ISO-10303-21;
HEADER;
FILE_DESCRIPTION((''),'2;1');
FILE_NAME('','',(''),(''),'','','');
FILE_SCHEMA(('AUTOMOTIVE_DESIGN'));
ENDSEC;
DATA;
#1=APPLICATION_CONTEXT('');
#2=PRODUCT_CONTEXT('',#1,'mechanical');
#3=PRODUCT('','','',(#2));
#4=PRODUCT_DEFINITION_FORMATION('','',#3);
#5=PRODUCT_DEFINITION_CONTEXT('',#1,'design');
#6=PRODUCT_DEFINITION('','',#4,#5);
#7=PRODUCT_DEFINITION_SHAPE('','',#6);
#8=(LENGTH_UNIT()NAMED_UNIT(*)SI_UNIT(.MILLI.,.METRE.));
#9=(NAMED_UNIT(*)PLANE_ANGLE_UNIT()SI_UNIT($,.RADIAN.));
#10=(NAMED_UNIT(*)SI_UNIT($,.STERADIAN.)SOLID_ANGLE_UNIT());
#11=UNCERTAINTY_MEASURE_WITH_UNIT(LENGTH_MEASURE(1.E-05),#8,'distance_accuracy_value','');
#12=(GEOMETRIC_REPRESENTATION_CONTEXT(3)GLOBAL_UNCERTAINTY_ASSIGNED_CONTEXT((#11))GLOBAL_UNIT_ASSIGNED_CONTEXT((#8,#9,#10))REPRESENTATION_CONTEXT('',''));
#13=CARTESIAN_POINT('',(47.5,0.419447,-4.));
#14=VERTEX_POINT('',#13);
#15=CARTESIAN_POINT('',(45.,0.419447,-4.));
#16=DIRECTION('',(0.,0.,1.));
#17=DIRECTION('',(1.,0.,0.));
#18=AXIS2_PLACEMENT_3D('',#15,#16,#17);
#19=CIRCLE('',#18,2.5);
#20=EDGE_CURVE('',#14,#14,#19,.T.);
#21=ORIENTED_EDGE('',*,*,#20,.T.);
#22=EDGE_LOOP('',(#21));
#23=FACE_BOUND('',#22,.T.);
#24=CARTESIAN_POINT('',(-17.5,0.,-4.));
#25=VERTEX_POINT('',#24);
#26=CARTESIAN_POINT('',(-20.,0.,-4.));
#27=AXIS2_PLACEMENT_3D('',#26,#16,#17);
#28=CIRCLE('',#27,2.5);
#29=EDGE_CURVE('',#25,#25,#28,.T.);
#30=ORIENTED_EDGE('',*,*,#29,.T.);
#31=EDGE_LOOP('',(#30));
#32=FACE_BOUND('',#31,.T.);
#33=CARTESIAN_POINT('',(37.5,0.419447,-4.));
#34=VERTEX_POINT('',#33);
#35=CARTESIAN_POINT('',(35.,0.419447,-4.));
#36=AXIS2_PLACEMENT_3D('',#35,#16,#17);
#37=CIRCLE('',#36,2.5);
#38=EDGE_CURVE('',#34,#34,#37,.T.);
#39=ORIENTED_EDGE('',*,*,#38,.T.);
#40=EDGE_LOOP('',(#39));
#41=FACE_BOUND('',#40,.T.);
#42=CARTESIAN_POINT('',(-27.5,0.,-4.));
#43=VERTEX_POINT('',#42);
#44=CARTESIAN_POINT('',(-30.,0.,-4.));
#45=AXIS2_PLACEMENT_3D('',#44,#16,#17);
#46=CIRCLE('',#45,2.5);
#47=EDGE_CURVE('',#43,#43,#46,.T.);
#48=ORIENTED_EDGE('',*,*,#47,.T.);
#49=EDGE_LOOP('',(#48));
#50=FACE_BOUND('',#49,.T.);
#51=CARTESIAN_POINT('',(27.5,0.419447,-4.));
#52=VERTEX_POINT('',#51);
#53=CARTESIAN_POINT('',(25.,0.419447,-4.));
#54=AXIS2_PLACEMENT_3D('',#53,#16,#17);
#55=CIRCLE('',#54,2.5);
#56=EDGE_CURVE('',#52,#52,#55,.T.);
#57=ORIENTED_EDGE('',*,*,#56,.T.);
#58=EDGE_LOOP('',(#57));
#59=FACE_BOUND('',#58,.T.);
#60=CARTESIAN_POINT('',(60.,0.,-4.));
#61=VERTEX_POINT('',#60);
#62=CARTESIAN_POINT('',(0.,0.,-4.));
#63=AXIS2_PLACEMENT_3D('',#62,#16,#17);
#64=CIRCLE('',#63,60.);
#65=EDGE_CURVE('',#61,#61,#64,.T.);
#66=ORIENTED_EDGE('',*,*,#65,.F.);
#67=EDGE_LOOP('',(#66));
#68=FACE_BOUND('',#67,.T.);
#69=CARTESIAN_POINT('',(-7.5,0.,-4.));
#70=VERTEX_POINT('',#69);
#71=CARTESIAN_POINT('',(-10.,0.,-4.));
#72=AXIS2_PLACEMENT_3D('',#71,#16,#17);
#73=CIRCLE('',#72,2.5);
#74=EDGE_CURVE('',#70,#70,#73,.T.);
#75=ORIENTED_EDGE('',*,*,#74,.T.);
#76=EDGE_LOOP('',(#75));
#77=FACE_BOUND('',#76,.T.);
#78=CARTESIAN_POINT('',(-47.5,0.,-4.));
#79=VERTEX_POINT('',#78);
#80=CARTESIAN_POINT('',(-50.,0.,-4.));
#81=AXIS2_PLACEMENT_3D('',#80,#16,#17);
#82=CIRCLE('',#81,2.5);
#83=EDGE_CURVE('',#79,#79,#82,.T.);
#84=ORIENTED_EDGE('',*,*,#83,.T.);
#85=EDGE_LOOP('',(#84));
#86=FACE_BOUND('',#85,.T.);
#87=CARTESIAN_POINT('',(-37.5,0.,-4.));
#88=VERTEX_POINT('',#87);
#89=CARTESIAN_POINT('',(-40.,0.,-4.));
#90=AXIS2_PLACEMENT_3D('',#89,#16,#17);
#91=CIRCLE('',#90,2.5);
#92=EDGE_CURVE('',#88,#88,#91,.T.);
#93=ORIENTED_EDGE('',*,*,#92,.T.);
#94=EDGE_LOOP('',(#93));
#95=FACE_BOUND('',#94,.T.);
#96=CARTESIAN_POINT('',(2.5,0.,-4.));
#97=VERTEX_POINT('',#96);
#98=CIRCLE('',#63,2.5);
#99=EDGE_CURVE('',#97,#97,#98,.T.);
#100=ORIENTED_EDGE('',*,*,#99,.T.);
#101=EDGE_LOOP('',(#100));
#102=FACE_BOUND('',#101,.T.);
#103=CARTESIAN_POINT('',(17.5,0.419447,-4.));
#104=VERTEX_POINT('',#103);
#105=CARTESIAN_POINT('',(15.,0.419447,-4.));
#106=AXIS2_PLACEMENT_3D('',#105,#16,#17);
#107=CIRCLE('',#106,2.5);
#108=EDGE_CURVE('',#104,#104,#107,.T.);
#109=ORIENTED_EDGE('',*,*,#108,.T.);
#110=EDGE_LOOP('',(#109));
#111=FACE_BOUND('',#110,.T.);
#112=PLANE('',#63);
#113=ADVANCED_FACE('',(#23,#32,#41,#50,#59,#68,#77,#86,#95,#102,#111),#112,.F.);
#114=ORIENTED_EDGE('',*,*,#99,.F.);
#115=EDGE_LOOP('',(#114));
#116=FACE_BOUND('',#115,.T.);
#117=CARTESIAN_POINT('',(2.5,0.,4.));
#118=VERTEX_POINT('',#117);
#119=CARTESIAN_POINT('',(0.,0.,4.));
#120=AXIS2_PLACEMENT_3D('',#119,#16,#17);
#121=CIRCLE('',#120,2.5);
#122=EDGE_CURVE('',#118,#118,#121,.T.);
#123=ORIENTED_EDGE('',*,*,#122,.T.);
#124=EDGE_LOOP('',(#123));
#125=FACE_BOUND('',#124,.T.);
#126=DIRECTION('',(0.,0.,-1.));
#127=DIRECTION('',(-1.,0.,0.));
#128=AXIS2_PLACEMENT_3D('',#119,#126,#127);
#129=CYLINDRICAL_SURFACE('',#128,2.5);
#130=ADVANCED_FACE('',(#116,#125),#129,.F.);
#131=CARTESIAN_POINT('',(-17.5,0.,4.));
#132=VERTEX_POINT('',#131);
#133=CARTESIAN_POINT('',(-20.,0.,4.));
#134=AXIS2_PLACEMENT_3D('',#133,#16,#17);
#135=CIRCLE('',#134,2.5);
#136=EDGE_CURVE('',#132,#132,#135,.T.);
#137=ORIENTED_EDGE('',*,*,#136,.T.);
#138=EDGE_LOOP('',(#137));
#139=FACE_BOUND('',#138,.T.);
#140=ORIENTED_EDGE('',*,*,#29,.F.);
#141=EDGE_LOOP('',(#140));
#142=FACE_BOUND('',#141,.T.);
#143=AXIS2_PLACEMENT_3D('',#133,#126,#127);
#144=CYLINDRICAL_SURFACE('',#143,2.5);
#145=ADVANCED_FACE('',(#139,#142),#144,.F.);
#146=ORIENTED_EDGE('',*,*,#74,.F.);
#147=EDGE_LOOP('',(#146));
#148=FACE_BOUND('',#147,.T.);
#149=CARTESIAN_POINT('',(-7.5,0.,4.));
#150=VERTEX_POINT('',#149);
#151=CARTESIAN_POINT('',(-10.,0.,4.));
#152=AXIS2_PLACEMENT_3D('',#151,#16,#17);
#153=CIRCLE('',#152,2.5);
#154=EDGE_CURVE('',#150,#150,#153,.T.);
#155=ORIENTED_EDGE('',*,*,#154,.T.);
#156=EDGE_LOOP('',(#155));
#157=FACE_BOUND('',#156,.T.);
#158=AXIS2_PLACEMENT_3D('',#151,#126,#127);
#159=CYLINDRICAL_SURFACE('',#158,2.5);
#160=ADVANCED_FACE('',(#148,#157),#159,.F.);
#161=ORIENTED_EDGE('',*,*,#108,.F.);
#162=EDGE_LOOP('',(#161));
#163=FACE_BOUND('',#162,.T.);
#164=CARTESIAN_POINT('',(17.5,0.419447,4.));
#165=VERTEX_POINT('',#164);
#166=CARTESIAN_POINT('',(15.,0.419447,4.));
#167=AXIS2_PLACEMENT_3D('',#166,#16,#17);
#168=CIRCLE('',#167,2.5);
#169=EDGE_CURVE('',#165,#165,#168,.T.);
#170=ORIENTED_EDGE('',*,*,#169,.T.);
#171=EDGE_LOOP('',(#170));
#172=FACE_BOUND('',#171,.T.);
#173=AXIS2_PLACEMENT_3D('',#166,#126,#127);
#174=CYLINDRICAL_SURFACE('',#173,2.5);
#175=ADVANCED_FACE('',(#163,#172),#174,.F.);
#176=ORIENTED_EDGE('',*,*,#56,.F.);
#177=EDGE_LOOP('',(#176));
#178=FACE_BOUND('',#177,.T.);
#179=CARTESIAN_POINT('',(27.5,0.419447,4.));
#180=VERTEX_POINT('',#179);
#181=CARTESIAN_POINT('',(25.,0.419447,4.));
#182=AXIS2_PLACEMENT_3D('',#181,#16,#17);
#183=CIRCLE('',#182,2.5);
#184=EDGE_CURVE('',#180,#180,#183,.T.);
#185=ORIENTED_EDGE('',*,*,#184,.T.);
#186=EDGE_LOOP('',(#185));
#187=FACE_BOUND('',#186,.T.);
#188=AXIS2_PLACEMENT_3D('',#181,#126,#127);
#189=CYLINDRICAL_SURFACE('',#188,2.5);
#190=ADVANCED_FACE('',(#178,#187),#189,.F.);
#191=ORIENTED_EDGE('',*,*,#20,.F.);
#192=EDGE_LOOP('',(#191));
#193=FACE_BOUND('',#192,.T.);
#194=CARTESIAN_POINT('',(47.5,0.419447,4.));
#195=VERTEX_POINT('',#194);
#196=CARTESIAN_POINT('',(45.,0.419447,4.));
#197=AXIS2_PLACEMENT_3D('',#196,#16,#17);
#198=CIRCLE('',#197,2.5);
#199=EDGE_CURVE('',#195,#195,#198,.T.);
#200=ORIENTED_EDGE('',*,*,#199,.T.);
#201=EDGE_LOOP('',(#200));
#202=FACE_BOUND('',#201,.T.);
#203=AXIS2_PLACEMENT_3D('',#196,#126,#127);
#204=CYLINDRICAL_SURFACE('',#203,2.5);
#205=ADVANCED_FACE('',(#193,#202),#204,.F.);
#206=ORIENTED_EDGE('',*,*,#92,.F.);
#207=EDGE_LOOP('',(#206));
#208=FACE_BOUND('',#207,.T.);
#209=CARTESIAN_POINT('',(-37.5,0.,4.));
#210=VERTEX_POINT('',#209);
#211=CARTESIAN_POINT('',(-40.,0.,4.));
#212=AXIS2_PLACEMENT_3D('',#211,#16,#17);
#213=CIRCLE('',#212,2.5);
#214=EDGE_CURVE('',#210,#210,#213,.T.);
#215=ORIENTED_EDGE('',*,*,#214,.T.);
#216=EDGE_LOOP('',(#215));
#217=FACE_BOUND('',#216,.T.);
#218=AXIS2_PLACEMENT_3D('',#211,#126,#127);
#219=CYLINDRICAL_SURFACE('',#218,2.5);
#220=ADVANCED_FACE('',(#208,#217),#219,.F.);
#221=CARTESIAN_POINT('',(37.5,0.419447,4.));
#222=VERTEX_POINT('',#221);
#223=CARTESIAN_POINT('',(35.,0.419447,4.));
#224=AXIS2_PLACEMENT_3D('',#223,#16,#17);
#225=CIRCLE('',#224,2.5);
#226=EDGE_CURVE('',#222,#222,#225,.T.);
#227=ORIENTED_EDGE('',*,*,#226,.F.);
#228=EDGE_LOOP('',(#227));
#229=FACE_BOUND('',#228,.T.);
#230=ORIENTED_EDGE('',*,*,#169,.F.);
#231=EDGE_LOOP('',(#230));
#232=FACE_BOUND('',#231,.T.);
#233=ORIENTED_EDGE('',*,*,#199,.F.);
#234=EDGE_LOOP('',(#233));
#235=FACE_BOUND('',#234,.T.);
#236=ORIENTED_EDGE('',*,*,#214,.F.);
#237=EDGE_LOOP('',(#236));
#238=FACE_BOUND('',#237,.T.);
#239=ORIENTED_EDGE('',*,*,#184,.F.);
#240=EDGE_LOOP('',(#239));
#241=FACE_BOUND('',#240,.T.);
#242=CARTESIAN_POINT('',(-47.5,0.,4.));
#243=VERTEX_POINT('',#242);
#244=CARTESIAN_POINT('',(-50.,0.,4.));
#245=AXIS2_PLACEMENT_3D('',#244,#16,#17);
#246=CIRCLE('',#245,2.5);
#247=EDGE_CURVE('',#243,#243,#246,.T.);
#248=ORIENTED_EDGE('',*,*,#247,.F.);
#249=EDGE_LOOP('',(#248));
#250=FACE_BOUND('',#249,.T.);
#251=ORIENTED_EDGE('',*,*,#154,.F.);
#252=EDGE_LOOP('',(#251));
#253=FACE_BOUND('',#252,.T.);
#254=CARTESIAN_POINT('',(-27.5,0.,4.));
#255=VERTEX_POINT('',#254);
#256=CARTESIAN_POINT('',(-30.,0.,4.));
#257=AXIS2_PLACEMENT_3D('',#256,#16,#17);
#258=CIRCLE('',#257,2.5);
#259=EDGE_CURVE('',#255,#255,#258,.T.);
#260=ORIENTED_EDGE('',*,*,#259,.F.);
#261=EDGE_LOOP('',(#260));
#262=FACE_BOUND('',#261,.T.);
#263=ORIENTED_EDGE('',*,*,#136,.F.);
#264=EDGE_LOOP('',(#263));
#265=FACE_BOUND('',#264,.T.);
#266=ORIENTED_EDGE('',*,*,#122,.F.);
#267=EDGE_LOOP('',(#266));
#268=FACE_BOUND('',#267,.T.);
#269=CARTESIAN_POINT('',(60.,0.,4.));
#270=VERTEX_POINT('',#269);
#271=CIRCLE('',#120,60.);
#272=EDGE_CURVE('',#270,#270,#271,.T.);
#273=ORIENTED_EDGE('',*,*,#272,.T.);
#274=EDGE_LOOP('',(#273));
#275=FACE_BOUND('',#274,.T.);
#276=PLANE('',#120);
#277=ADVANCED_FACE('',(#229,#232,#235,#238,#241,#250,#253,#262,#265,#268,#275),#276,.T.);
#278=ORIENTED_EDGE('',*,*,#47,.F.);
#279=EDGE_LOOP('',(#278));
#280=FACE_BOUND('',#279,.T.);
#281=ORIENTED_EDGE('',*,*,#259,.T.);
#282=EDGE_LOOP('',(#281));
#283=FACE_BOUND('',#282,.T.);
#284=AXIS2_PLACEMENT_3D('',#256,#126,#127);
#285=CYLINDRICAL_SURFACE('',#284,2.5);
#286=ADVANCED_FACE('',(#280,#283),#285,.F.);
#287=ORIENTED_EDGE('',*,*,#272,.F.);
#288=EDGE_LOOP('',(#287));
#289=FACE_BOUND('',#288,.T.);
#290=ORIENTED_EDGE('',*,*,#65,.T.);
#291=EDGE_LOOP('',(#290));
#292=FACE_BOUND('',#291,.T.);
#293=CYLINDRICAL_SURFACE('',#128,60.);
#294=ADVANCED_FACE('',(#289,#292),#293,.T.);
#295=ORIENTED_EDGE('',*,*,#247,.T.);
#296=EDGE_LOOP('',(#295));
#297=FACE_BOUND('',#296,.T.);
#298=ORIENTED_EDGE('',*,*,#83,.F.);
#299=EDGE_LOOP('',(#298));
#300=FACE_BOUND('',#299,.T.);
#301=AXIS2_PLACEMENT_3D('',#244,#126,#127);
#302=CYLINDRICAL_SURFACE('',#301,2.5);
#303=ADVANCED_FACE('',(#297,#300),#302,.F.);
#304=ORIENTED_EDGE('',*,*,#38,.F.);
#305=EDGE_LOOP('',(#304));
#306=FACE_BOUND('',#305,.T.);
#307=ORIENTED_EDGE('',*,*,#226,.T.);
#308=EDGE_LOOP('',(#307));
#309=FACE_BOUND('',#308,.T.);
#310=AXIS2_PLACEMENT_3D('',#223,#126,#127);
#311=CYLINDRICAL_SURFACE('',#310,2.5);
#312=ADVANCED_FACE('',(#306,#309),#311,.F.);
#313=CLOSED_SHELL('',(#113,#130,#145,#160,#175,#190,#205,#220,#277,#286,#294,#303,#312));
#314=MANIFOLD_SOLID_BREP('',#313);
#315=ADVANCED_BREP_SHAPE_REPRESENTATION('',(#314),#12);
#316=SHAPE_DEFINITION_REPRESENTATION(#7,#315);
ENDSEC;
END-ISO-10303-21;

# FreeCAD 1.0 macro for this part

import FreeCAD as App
import Part
import Sketcher
from FreeCAD import Vector

doc = App.newDocument("Part")
body = doc.addObject("PartDesign::Body", "Body")

# Sketch on XY plane
sketch1 = doc.addObject("Sketcher::SketchObject", "Sketch")
body.addObject(sketch1)
sketch1.AttachmentSupport = (doc.XY_Plane, [""])
sketch1.MapMode = "FlatFace"
sketch1.addGeometry(Part.Circle(Vector(0, 0, 0), Vector(0, 0, 1), 60), False)
sketch1.addGeometry(Part.Circle(Vector(-50, 0, 0), Vector(0, 0, 1), 2.5), False)
sketch1.addGeometry(Part.Circle(Vector(-40, 0, 0), Vector(0, 0, 1), 2.5), False)
sketch1.addGeometry(Part.Circle(Vector(-30, 0, 0), Vector(0, 0, 1), 2.5), False)
sketch1.addGeometry(Part.Circle(Vector(-20, 0, 0), Vector(0, 0, 1), 2.5), False)
sketch1.addGeometry(Part.Circle(Vector(-10, 0, 0), Vector(0, 0, 1), 2.5), False)
sketch1.addGeometry(Part.Circle(Vector(0, 0, 0), Vector(0, 0, 1), 2.5), False)
sketch1.addGeometry(Part.Circle(Vector(15, 0.419447, 0), Vector(0, 0, 1), 2.5), False)
sketch1.addGeometry(Part.Circle(Vector(25, 0.419447, 0), Vector(0, 0, 1), 2.5), False)
sketch1.addGeometry(Part.Circle(Vector(35, 0.419447, 0), Vector(0, 0, 1), 2.5), False)
sketch1.addGeometry(Part.Circle(Vector(45, 0.419447, 0), Vector(0, 0, 1), 2.5), False)
sketch1.addConstraint(Sketcher.Constraint("Coincident", 0, 3, -1, 1))
sketch1.addConstraint(Sketcher.Constraint("Coincident", 6, 3, -1, 1))
sketch1.addConstraint(Sketcher.Constraint("Equal", 1, 2))
sketch1.addConstraint(Sketcher.Constraint("Equal", 2, 3))
sketch1.addConstraint(Sketcher.Constraint("Equal", 3, 4))
sketch1.addConstraint(Sketcher.Constraint("Equal", 4, 5))
sketch1.addConstraint(Sketcher.Constraint("Equal", 5, 6))
sketch1.addConstraint(Sketcher.Constraint("Equal", 6, 7))
sketch1.addConstraint(Sketcher.Constraint("Equal", 7, 8))
sketch1.addConstraint(Sketcher.Constraint("Equal", 8, 9))
sketch1.addConstraint(Sketcher.Constraint("Equal", 9, 10))
sketch1.addConstraint(Sketcher.Constraint("PointOnObject", 1, 3, -1))
sketch1.addConstraint(Sketcher.Constraint("PointOnObject", 2, 3, -1))
sketch1.addConstraint(Sketcher.Constraint("PointOnObject", 3, 3, -1))
sketch1.addConstraint(Sketcher.Constraint("PointOnObject", 4, 3, -1))
sketch1.addConstraint(Sketcher.Constraint("PointOnObject", 5, 3, -1))
sketch1.addConstraint(Sketcher.Constraint("Horizontal", 7, 3, 8, 3))
sketch1.addConstraint(Sketcher.Constraint("Horizontal", 8, 3, 9, 3))
sketch1.addConstraint(Sketcher.Constraint("Horizontal", 9, 3, 10, 3))
sketch1.addConstraint(Sketcher.Constraint("Diameter", 0, 120.0))
sketch1.addConstraint(Sketcher.Constraint("Diameter", 1, 5.0))
sketch1.addConstraint(Sketcher.Constraint("DistanceX", 1, 3, -1, 1, 50.0))
sketch1.addConstraint(Sketcher.Constraint("DistanceX", 2, 3, -1, 1, 40.0))
sketch1.addConstraint(Sketcher.Constraint("DistanceX", 3, 3, -1, 1, 30.0))
sketch1.addConstraint(Sketcher.Constraint("DistanceX", 4, 3, -1, 1, 20.0))
sketch1.addConstraint(Sketcher.Constraint("DistanceX", 5, 3, -1, 1, 10.0))
sketch1.addConstraint(Sketcher.Constraint("DistanceX", -1, 1, 7, 3, 15.0))
sketch1.addConstraint(Sketcher.Constraint("DistanceX", -1, 1, 8, 3, 25.0))
sketch1.addConstraint(Sketcher.Constraint("DistanceX", -1, 1, 9, 3, 35.0))
sketch1.addConstraint(Sketcher.Constraint("DistanceX", -1, 1, 10, 3, 45.0))
sketch1.addConstraint(Sketcher.Constraint("DistanceY", -1, 1, 7, 3, 0.419447))
pad1 = doc.addObject("PartDesign::Pad", "Pad")
body.addObject(pad1)
pad1.Profile = sketch1
pad1.Length = 8
pad1.Midplane = True

doc.recompute()
